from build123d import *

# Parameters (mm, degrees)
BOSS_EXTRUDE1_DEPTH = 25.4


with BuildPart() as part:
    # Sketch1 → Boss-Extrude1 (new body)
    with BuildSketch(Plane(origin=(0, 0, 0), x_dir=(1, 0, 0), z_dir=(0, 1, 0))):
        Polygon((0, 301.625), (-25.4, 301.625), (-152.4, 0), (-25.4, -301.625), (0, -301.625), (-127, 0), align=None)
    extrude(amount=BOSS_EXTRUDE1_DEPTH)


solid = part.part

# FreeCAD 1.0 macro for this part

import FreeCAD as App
import Part
import Sketcher
Q = App.Units.Quantity


def add_polygon(sketch, points):
    """Adds a closed chain of lines whose ends are joined by coincident constraints."""
    first, n = sketch.GeometryCount, len(points)
    for a, b in zip(points, points[1:] + points[:1]):
        sketch.addGeometry(Part.LineSegment(App.Vector(*a, 0), App.Vector(*b, 0)), False)
    for i in range(n):
        sketch.addConstraint(Sketcher.Constraint("Coincident", first + i, 2, first + (i + 1) % n, 1))

doc = App.newDocument("Part")
body = doc.addObject("PartDesign::Body", "Body")

sketch1 = doc.addObject("Sketcher::SketchObject", "Sketch")
body.addObject(sketch1)
sketch1.AttachmentSupport = (doc.XZ_Plane, [""])
sketch1.MapMode = "FlatFace"
add_polygon(sketch1, [(0, -302), (-25, -302), (-152, 0), (-25, 302), (0, 302), (-127, 0)])
sketch1.addConstraint([
    Sketcher.Constraint("Horizontal", 0),
    Sketcher.Constraint("Horizontal", 3),
    Sketcher.Constraint("Symmetric", 3, 2, 5, 2, -1, 1),
    Sketcher.Constraint("PointOnObject", 1, 2, -1),
    Sketcher.Constraint("PointOnObject", 3, 2, -2),
    Sketcher.Constraint("PointOnObject", 4, 2, -1),
    Sketcher.Constraint("Parallel", 2, 4),
    Sketcher.Constraint("Parallel", 1, 5),
    Sketcher.Constraint("DistanceX", 0, 2, 0, 1, Q("1 in")),
    Sketcher.Constraint("DistanceX", 1, 2, -1, 1, Q("6 in")),
    Sketcher.Constraint("DistanceY", 0, 2, 2, 2, Q("23.75 in")),
])
pad1 = doc.addObject("PartDesign::Pad", "Pad")
body.addObject(pad1)
pad1.Profile = sketch1
pad1.Length = Q("1 in")
pad1.Reversed = True

doc.recompute()
